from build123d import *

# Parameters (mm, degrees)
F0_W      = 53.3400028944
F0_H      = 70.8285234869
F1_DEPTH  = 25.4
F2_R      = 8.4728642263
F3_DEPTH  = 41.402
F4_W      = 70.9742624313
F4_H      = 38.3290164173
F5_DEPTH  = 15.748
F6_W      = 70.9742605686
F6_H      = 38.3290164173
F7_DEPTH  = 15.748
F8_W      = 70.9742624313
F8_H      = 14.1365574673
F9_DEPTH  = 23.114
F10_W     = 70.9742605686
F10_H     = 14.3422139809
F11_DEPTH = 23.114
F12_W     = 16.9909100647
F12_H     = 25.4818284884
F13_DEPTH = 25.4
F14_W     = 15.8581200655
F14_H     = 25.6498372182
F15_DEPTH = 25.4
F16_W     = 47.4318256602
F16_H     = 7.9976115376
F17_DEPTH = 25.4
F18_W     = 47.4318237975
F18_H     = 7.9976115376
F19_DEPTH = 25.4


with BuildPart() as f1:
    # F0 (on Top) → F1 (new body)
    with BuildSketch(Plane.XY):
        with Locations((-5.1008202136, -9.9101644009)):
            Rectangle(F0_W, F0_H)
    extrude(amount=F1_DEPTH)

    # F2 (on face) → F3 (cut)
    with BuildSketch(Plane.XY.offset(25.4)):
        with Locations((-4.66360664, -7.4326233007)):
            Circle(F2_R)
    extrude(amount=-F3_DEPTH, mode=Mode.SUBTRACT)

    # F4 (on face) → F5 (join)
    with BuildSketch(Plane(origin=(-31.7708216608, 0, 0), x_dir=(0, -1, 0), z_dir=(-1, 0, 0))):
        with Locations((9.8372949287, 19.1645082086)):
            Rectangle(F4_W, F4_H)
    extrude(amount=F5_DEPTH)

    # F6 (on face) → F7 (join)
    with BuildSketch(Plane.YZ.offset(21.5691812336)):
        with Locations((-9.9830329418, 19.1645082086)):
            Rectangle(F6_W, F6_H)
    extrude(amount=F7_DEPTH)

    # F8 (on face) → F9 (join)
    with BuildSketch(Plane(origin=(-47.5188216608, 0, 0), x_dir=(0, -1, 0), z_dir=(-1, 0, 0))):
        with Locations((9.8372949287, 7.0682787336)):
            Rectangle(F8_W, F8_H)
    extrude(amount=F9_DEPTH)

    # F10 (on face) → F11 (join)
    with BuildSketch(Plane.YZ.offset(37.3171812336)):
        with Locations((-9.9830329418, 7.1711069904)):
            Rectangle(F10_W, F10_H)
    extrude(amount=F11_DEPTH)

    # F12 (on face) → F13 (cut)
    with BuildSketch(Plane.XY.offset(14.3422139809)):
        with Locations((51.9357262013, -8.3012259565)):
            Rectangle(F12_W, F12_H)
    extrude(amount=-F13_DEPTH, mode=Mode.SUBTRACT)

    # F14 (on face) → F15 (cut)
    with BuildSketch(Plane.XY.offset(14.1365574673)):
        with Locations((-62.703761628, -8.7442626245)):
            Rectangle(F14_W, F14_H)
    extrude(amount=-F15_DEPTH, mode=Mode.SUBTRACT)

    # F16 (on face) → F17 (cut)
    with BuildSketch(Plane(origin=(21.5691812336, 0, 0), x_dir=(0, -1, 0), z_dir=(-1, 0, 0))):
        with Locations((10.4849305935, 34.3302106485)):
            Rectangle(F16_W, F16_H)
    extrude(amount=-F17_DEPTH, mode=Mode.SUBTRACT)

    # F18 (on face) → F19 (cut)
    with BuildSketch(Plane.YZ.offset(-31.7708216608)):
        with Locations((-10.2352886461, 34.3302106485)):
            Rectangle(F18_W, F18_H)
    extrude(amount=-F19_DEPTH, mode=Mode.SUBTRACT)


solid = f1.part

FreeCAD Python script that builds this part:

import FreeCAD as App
import Part
import Sketcher
from FreeCAD import Vector
Q = App.Units.Quantity

doc = App.newDocument("Part")
body = doc.addObject("PartDesign::Body", "Body")

# Sketch on XY plane
sketch1 = doc.addObject("Sketcher::SketchObject", "Sketch")
body.addObject(sketch1)
sketch1.AttachmentSupport = (doc.XY_Plane, [""])
sketch1.MapMode = "FlatFace"
sketch1.addGeometry(Part.LineSegment(Vector(-32, 26, 0), Vector(-32, -45, 0)), False)
sketch1.addGeometry(Part.LineSegment(Vector(-32, -45, 0), Vector(22, -45, 0)), False)
sketch1.addGeometry(Part.LineSegment(Vector(22, -45, 0), Vector(22, 26, 0)), False)
sketch1.addGeometry(Part.LineSegment(Vector(22, 26, 0), Vector(-32, 26, 0)), False)
sketch1.addConstraint(Sketcher.Constraint("Coincident", 0, 2, 1, 1))
sketch1.addConstraint(Sketcher.Constraint("Coincident", 1, 2, 2, 1))
sketch1.addConstraint(Sketcher.Constraint("Coincident", 2, 2, 3, 1))
sketch1.addConstraint(Sketcher.Constraint("Coincident", 3, 2, 0, 1))
sketch1.addConstraint(Sketcher.Constraint("Vertical", 0))
sketch1.addConstraint(Sketcher.Constraint("Horizontal", 1))
sketch1.addConstraint(Sketcher.Constraint("Vertical", 2))
sketch1.addConstraint(Sketcher.Constraint("Horizontal", 3))
sketch1.addConstraint(Sketcher.Constraint("DistanceX", 1, 1, 1, 2, Q("2.1000001 in")))
sketch1.addConstraint(Sketcher.Constraint("DistanceY", 0, 2, 0, 1, Q("70.828523 mm")))
sketch1.addConstraint(Sketcher.Constraint("DistanceX", 0, 2, -1, 1, Q("31.770822 mm")))
sketch1.addConstraint(Sketcher.Constraint("DistanceY", 0, 2, -1, 1, Q("45.324426 mm")))
pad1 = doc.addObject("PartDesign::Pad", "Pad")
body.addObject(pad1)
pad1.Profile = sketch1
pad1.Length = Q("1 in")

# Sketch on XY plane
sketch2 = doc.addObject("Sketcher::SketchObject", "Sketch001")
body.addObject(sketch2)
sketch2.AttachmentSupport = (doc.XY_Plane, [""])
sketch2.MapMode = "FlatFace"
sketch2.AttachmentOffset = App.Placement(Vector(0, 0, 1 * 25.4), App.Rotation())
sketch2.addGeometry(Part.Circle(Vector(-5, -7, 0), Vector(0, 0, 1), 8), False)
sketch2.addConstraint(Sketcher.Constraint("Diameter", 0, Q("16.945728 mm")))
sketch2.addConstraint(Sketcher.Constraint("DistanceX", 0, 3, -1, 1, Q("4.663607 mm")))
sketch2.addConstraint(Sketcher.Constraint("DistanceY", 0, 3, -1, 1, Q("7.432623 mm")))
pocket1 = doc.addObject("PartDesign::Pocket", "Pocket")
body.addObject(pocket1)
pocket1.Profile = sketch2
pocket1.Length = Q("1.63 in")

# Sketch on YZ plane
sketch3 = doc.addObject("Sketcher::SketchObject", "Sketch002")
body.addObject(sketch3)
sketch3.AttachmentSupport = (doc.YZ_Plane, [""])
sketch3.MapMode = "FlatFace"
sketch3.AttachmentOffset = App.Placement(Vector(0, 0, -31.770822), App.Rotation())
sketch3.addGeometry(Part.LineSegment(Vector(26, 38, 0), Vector(26, 0, 0)), False)
sketch3.addGeometry(Part.LineSegment(Vector(26, 0, 0), Vector(-45, 0, 0)), False)
sketch3.addGeometry(Part.LineSegment(Vector(-45, 0, 0), Vector(-45, 38, 0)), False)
sketch3.addGeometry(Part.LineSegment(Vector(-45, 38, 0), Vector(26, 38, 0)), False)
sketch3.addConstraint(Sketcher.Constraint("Coincident", 0, 2, 1, 1))
sketch3.addConstraint(Sketcher.Constraint("Coincident", 1, 2, 2, 1))
sketch3.addConstraint(Sketcher.Constraint("Coincident", 2, 2, 3, 1))
sketch3.addConstraint(Sketcher.Constraint("Coincident", 3, 2, 0, 1))
sketch3.addConstraint(Sketcher.Constraint("Vertical", 0))
sketch3.addConstraint(Sketcher.Constraint("Horizontal", 1))
sketch3.addConstraint(Sketcher.Constraint("Vertical", 2))
sketch3.addConstraint(Sketcher.Constraint("Horizontal", 3))
sketch3.addConstraint(Sketcher.Constraint("PointOnObject", 0, 2, -1))
sketch3.addConstraint(Sketcher.Constraint("DistanceX", 1, 2, 1, 1, Q("70.974262 mm")))
sketch3.addConstraint(Sketcher.Constraint("DistanceY", 0, 2, 0, 1, Q("38.329016 mm")))
sketch3.addConstraint(Sketcher.Constraint("DistanceX", -1, 1, 0, 2, Q("25.649836 mm")))
pad2 = doc.addObject("PartDesign::Pad", "Pad001")
body.addObject(pad2)
pad2.Profile = sketch3
pad2.Length = Q("0.62 in")
pad2.Reversed = True

# Sketch on YZ plane
sketch4 = doc.addObject("Sketcher::SketchObject", "Sketch003")
body.addObject(sketch4)
sketch4.AttachmentSupport = (doc.YZ_Plane, [""])
sketch4.MapMode = "FlatFace"
sketch4.AttachmentOffset = App.Placement(Vector(0, 0, 21.569181), App.Rotation())
sketch4.addGeometry(Part.LineSegment(Vector(-45, 38, 0), Vector(-45, 0, 0)), False)
sketch4.addGeometry(Part.LineSegment(Vector(-45, 0, 0), Vector(26, 0, 0)), False)
sketch4.addGeometry(Part.LineSegment(Vector(26, 0, 0), Vector(26, 38, 0)), False)
sketch4.addGeometry(Part.LineSegment(Vector(26, 38, 0), Vector(-45, 38, 0)), False)
sketch4.addConstraint(Sketcher.Constraint("Coincident", 0, 2, 1, 1))
sketch4.addConstraint(Sketcher.Constraint("Coincident", 1, 2, 2, 1))
sketch4.addConstraint(Sketcher.Constraint("Coincident", 2, 2, 3, 1))
sketch4.addConstraint(Sketcher.Constraint("Coincident", 3, 2, 0, 1))
sketch4.addConstraint(Sketcher.Constraint("Vertical", 0))
sketch4.addConstraint(Sketcher.Constraint("Horizontal", 1))
sketch4.addConstraint(Sketcher.Constraint("Vertical", 2))
sketch4.addConstraint(Sketcher.Constraint("Horizontal", 3))
sketch4.addConstraint(Sketcher.Constraint("PointOnObject", 0, 2, -1))
sketch4.addConstraint(Sketcher.Constraint("DistanceX", 1, 1, 1, 2, Q("70.974261 mm")))
sketch4.addConstraint(Sketcher.Constraint("DistanceY", 0, 2, 0, 1, Q("38.329016 mm")))
sketch4.addConstraint(Sketcher.Constraint("DistanceX", 0, 2, -1, 1, Q("45.470163 mm")))
pad3 = doc.addObject("PartDesign::Pad", "Pad002")
body.addObject(pad3)
pad3.Profile = sketch4
pad3.Length = Q("0.62 in")

# Sketch on YZ plane
sketch5 = doc.addObject("Sketcher::SketchObject", "Sketch004")
body.addObject(sketch5)
sketch5.AttachmentSupport = (doc.YZ_Plane, [""])
sketch5.MapMode = "FlatFace"
sketch5.AttachmentOffset = App.Placement(Vector(0, 0, -47.518822), App.Rotation())
sketch5.addGeometry(Part.LineSegment(Vector(26, 14, 0), Vector(26, 0, 0)), False)
sketch5.addGeometry(Part.LineSegment(Vector(26, 0, 0), Vector(-45, 0, 0)), False)
sketch5.addGeometry(Part.LineSegment(Vector(-45, 0, 0), Vector(-45, 14, 0)), False)
sketch5.addGeometry(Part.LineSegment(Vector(-45, 14, 0), Vector(26, 14, 0)), False)
sketch5.addConstraint(Sketcher.Constraint("Coincident", 0, 2, 1, 1))
sketch5.addConstraint(Sketcher.Constraint("Coincident", 1, 2, 2, 1))
sketch5.addConstraint(Sketcher.Constraint("Coincident", 2, 2, 3, 1))
sketch5.addConstraint(Sketcher.Constraint("Coincident", 3, 2, 0, 1))
sketch5.addConstraint(Sketcher.Constraint("Vertical", 0))
sketch5.addConstraint(Sketcher.Constraint("Horizontal", 1))
sketch5.addConstraint(Sketcher.Constraint("Vertical", 2))
sketch5.addConstraint(Sketcher.Constraint("Horizontal", 3))
sketch5.addConstraint(Sketcher.Constraint("PointOnObject", 0, 2, -1))
sketch5.addConstraint(Sketcher.Constraint("DistanceX", 1, 2, 1, 1, Q("70.974262 mm")))
sketch5.addConstraint(Sketcher.Constraint("DistanceY", 0, 2, 0, 1, Q("14.136557 mm")))
sketch5.addConstraint(Sketcher.Constraint("DistanceX", -1, 1, 0, 2, Q("25.649836 mm")))
pad4 = doc.addObject("PartDesign::Pad", "Pad003")
body.addObject(pad4)
pad4.Profile = sketch5
pad4.Length = Q("0.91 in")
pad4.Reversed = True

# Sketch on YZ plane
sketch6 = doc.addObject("Sketcher::SketchObject", "Sketch005")
body.addObject(sketch6)
sketch6.AttachmentSupport = (doc.YZ_Plane, [""])
sketch6.MapMode = "FlatFace"
sketch6.AttachmentOffset = App.Placement(Vector(0, 0, 37.317181), App.Rotation())
sketch6.addGeometry(Part.LineSegment(Vector(-45, 14, 0), Vector(-45, 0, 0)), False)
sketch6.addGeometry(Part.LineSegment(Vector(-45, 0, 0), Vector(26, 0, 0)), False)
sketch6.addGeometry(Part.LineSegment(Vector(26, 0, 0), Vector(26, 14, 0)), False)
sketch6.addGeometry(Part.LineSegment(Vector(26, 14, 0), Vector(-45, 14, 0)), False)
sketch6.addConstraint(Sketcher.Constraint("Coincident", 0, 2, 1, 1))
sketch6.addConstraint(Sketcher.Constraint("Coincident", 1, 2, 2, 1))
sketch6.addConstraint(Sketcher.Constraint("Coincident", 2, 2, 3, 1))
sketch6.addConstraint(Sketcher.Constraint("Coincident", 3, 2, 0, 1))
sketch6.addConstraint(Sketcher.Constraint("Vertical", 0))
sketch6.addConstraint(Sketcher.Constraint("Horizontal", 1))
sketch6.addConstraint(Sketcher.Constraint("Vertical", 2))
sketch6.addConstraint(Sketcher.Constraint("Horizontal", 3))
sketch6.addConstraint(Sketcher.Constraint("PointOnObject", 0, 2, -1))
sketch6.addConstraint(Sketcher.Constraint("DistanceX", 1, 1, 1, 2, Q("70.974261 mm")))
sketch6.addConstraint(Sketcher.Constraint("DistanceY", 0, 2, 0, 1, Q("14.342214 mm")))
sketch6.addConstraint(Sketcher.Constraint("DistanceX", 0, 2, -1, 1, Q("45.470163 mm")))
pad5 = doc.addObject("PartDesign::Pad", "Pad004")
body.addObject(pad5)
pad5.Profile = sketch6
pad5.Length = Q("0.91 in")

# Sketch on XY plane
sketch7 = doc.addObject("Sketcher::SketchObject", "Sketch006")
body.addObject(sketch7)
sketch7.AttachmentSupport = (doc.XY_Plane, [""])
sketch7.MapMode = "FlatFace"
sketch7.AttachmentOffset = App.Placement(Vector(0, 0, 14.342214), App.Rotation())
sketch7.addGeometry(Part.LineSegment(Vector(43, 4, 0), Vector(43, -21, 0)), False)
sketch7.addGeometry(Part.LineSegment(Vector(43, -21, 0), Vector(60, -21, 0)), False)
sketch7.addGeometry(Part.LineSegment(Vector(60, -21, 0), Vector(60, 4, 0)), False)
sketch7.addGeometry(Part.LineSegment(Vector(60, 4, 0), Vector(43, 4, 0)), False)
sketch7.addConstraint(Sketcher.Constraint("Coincident", 0, 2, 1, 1))
sketch7.addConstraint(Sketcher.Constraint("Coincident", 1, 2, 2, 1))
sketch7.addConstraint(Sketcher.Constraint("Coincident", 2, 2, 3, 1))
sketch7.addConstraint(Sketcher.Constraint("Coincident", 3, 2, 0, 1))
sketch7.addConstraint(Sketcher.Constraint("Vertical", 0))
sketch7.addConstraint(Sketcher.Constraint("Horizontal", 1))
sketch7.addConstraint(Sketcher.Constraint("Vertical", 2))
sketch7.addConstraint(Sketcher.Constraint("Horizontal", 3))
sketch7.addConstraint(Sketcher.Constraint("DistanceX", 1, 1, 1, 2, Q("16.99091 mm")))
sketch7.addConstraint(Sketcher.Constraint("DistanceY", 0, 2, 0, 1, Q("25.481828 mm")))
sketch7.addConstraint(Sketcher.Constraint("DistanceX", -1, 1, 0, 2, Q("43.440271 mm")))
sketch7.addConstraint(Sketcher.Constraint("DistanceY", 0, 2, -1, 1, Q("21.04214 mm")))
pocket2 = doc.addObject("PartDesign::Pocket", "Pocket001")
body.addObject(pocket2)
pocket2.Profile = sketch7
pocket2.Length = Q("1 in")

# Sketch on XY plane
sketch8 = doc.addObject("Sketcher::SketchObject", "Sketch007")
body.addObject(sketch8)
sketch8.AttachmentSupport = (doc.XY_Plane, [""])
sketch8.MapMode = "FlatFace"
sketch8.AttachmentOffset = App.Placement(Vector(0, 0, 14.136557), App.Rotation())
sketch8.addGeometry(Part.LineSegment(Vector(-71, 4, 0), Vector(-71, -22, 0)), False)
sketch8.addGeometry(Part.LineSegment(Vector(-71, -22, 0), Vector(-55, -22, 0)), False)
sketch8.addGeometry(Part.LineSegment(Vector(-55, -22, 0), Vector(-55, 4, 0)), False)
sketch8.addGeometry(Part.LineSegment(Vector(-55, 4, 0), Vector(-71, 4, 0)), False)
sketch8.addConstraint(Sketcher.Constraint("Coincident", 0, 2, 1, 1))
sketch8.addConstraint(Sketcher.Constraint("Coincident", 1, 2, 2, 1))
sketch8.addConstraint(Sketcher.Constraint("Coincident", 2, 2, 3, 1))
sketch8.addConstraint(Sketcher.Constraint("Coincident", 3, 2, 0, 1))
sketch8.addConstraint(Sketcher.Constraint("Vertical", 0))
sketch8.addConstraint(Sketcher.Constraint("Horizontal", 1))
sketch8.addConstraint(Sketcher.Constraint("Vertical", 2))
sketch8.addConstraint(Sketcher.Constraint("Horizontal", 3))
sketch8.addConstraint(Sketcher.Constraint("DistanceX", 1, 1, 1, 2, Q("15.85812 mm")))
sketch8.addConstraint(Sketcher.Constraint("DistanceX", 1, 2, -1, 1, Q("54.774702 mm")))
sketch8.addConstraint(Sketcher.Constraint("DistanceY", 0, 2, 0, 1, Q("25.649837 mm")))
sketch8.addConstraint(Sketcher.Constraint("DistanceY", 0, 2, -1, 1, Q("21.569181 mm")))
pocket3 = doc.addObject("PartDesign::Pocket", "Pocket002")
body.addObject(pocket3)
pocket3.Profile = sketch8
pocket3.Length = Q("1 in")

# Sketch on YZ plane
sketch9 = doc.addObject("Sketcher::SketchObject", "Sketch008")
body.addObject(sketch9)
sketch9.AttachmentSupport = (doc.YZ_Plane, [""])
sketch9.MapMode = "FlatFace"
sketch9.AttachmentOffset = App.Placement(Vector(0, 0, 21.569181), App.Rotation())
sketch9.addGeometry(Part.LineSegment(Vector(13, 38, 0), Vector(13, 30, 0)), False)
sketch9.addGeometry(Part.LineSegment(Vector(13, 30, 0), Vector(-34, 30, 0)), False)
sketch9.addGeometry(Part.LineSegment(Vector(-34, 30, 0), Vector(-34, 38, 0)), False)
sketch9.addGeometry(Part.LineSegment(Vector(-34, 38, 0), Vector(13, 38, 0)), False)
sketch9.addConstraint(Sketcher.Constraint("Coincident", 0, 2, 1, 1))
sketch9.addConstraint(Sketcher.Constraint("Coincident", 1, 2, 2, 1))
sketch9.addConstraint(Sketcher.Constraint("Coincident", 2, 2, 3, 1))
sketch9.addConstraint(Sketcher.Constraint("Coincident", 3, 2, 0, 1))
sketch9.addConstraint(Sketcher.Constraint("Vertical", 0))
sketch9.addConstraint(Sketcher.Constraint("Horizontal", 1))
sketch9.addConstraint(Sketcher.Constraint("Vertical", 2))
sketch9.addConstraint(Sketcher.Constraint("Horizontal", 3))
sketch9.addConstraint(Sketcher.Constraint("DistanceY", 0, 2, 0, 1, Q("7.997612 mm")))
sketch9.addConstraint(Sketcher.Constraint("DistanceX", 1, 2, 1, 1, Q("47.431826 mm")))
sketch9.addConstraint(Sketcher.Constraint("DistanceX", -1, 1, 0, 2, Q("13.230982 mm")))
sketch9.addConstraint(Sketcher.Constraint("DistanceY", -1, 1, 0, 2, Q("30.331405 mm")))
pocket4 = doc.addObject("PartDesign::Pocket", "Pocket003")
body.addObject(pocket4)
pocket4.Profile = sketch9
pocket4.Length = Q("1 in")
pocket4.Reversed = True

# Sketch on YZ plane
sketch10 = doc.addObject("Sketcher::SketchObject", "Sketch009")
body.addObject(sketch10)
sketch10.AttachmentSupport = (doc.YZ_Plane, [""])
sketch10.MapMode = "FlatFace"
sketch10.AttachmentOffset = App.Placement(Vector(0, 0, -31.770822), App.Rotation())
sketch10.addGeometry(Part.LineSegment(Vector(-34, 38, 0), Vector(-34, 30, 0)), False)
sketch10.addGeometry(Part.LineSegment(Vector(-34, 30, 0), Vector(13, 30, 0)), False)
sketch10.addGeometry(Part.LineSegment(Vector(13, 30, 0), Vector(13, 38, 0)), False)
sketch10.addGeometry(Part.LineSegment(Vector(13, 38, 0), Vector(-34, 38, 0)), False)
sketch10.addConstraint(Sketcher.Constraint("Coincident", 0, 2, 1, 1))
sketch10.addConstraint(Sketcher.Constraint("Coincident", 1, 2, 2, 1))
sketch10.addConstraint(Sketcher.Constraint("Coincident", 2, 2, 3, 1))
sketch10.addConstraint(Sketcher.Constraint("Coincident", 3, 2, 0, 1))
sketch10.addConstraint(Sketcher.Constraint("Vertical", 0))
sketch10.addConstraint(Sketcher.Constraint("Horizontal", 1))
sketch10.addConstraint(Sketcher.Constraint("Vertical", 2))
sketch10.addConstraint(Sketcher.Constraint("Horizontal", 3))
sketch10.addConstraint(Sketcher.Constraint("DistanceY", 0, 2, 0, 1, Q("7.997612 mm")))
sketch10.addConstraint(Sketcher.Constraint("DistanceX", 0, 2, -1, 1, Q("33.951201 mm")))
sketch10.addConstraint(Sketcher.Constraint("DistanceX", 1, 1, 1, 2, Q("47.431824 mm")))
sketch10.addConstraint(Sketcher.Constraint("DistanceY", -1, 1, 0, 2, Q("30.331405 mm")))
pocket5 = doc.addObject("PartDesign::Pocket", "Pocket004")
body.addObject(pocket5)
pocket5.Profile = sketch10
pocket5.Length = Q("1 in")

doc.recompute()
